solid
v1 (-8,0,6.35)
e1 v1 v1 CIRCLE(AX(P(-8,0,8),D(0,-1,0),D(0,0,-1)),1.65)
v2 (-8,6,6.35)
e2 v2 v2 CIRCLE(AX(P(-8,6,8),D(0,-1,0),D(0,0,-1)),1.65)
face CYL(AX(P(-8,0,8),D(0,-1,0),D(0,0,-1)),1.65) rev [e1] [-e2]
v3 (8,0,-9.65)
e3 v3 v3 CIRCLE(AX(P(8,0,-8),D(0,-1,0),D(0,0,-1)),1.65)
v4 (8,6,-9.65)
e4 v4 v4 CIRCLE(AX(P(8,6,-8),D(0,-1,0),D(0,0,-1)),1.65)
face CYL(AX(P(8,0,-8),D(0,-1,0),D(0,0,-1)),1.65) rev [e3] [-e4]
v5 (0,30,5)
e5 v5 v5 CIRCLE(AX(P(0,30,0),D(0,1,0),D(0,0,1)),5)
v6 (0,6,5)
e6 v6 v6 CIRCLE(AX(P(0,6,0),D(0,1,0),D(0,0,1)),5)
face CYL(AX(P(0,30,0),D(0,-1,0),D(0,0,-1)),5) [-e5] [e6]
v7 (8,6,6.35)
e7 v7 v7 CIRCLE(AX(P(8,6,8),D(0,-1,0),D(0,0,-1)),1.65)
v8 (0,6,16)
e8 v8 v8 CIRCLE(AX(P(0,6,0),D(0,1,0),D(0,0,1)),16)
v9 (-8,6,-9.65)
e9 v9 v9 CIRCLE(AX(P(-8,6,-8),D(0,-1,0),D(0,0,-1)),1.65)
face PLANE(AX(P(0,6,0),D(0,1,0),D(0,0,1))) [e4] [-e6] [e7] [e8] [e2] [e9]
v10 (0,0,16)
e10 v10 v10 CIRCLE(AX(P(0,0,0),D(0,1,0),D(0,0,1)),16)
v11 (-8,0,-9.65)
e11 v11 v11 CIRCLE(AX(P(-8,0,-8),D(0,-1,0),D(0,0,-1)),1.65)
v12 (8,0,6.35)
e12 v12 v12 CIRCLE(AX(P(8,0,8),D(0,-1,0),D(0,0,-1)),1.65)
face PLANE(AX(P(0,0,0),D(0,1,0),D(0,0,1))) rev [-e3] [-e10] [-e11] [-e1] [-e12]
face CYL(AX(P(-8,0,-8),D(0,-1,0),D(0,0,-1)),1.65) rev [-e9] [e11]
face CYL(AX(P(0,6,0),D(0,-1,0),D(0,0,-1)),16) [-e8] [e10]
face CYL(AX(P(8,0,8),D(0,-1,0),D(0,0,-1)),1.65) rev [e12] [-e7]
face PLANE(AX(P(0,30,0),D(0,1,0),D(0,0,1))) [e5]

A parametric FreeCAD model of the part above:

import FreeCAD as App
import Part
import Sketcher

doc = App.newDocument("Part")
params = doc.addObject("Spreadsheet::Sheet", "Params")
for row, (alias, value) in enumerate([
    ("sketch1_diameter", "32 mm"),
    ("pad1_length", "6 mm"),
    ("sketch2_diameter", "3.3 mm"),
    ("hole_diameter", "3.3 mm"),
    ("sketch3_diameter", "10 mm"),
    ("pad2_length", "24 mm"),
], start=1):
    params.set(f"A{row}", alias)
    params.set(f"B{row}", "=" + value)
    params.setAlias(f"B{row}", alias)

body = doc.addObject("PartDesign::Body", "Body")

sketch1 = doc.addObject("Sketcher::SketchObject", "Sketch")
body.addObject(sketch1)
sketch1.AttachmentSupport = (doc.XZ_Plane, [""])
sketch1.MapMode = "FlatFace"
sketch1.addGeometry(Part.Circle(App.Vector(0, 0, 0), App.Vector(0, 0, 1), 16), False)
sketch1.addConstraint([
    Sketcher.Constraint("Coincident", 0, 3, -1, 1),
    Sketcher.Constraint("Diameter", 0, 32.0),
])
sketch1.setExpression("Constraints[1]", "Params.sketch1_diameter")
pad1 = doc.addObject("PartDesign::Pad", "Pad")
body.addObject(pad1)
pad1.Profile = sketch1
pad1.setExpression("Length", "Params.pad1_length")
pad1.Reversed = True

sketch2 = doc.addObject("Sketcher::SketchObject", "Sketch001")
body.addObject(sketch2)
sketch2.AttachmentSupport = (doc.XZ_Plane, [""])
sketch2.MapMode = "FlatFace"
sketch2.addGeometry([
    Part.Circle(App.Vector(8, -8, 0), App.Vector(0, 0, 1), 1.65),
    Part.Circle(App.Vector(8, 8, 0), App.Vector(0, 0, 1), 1.65),
    Part.Circle(App.Vector(-8, 8, 0), App.Vector(0, 0, 1), 1.65),
    Part.Circle(App.Vector(-8, -8, 0), App.Vector(0, 0, 1), 1.65),
], False)
sketch2.addConstraint([
    Sketcher.Constraint("Equal", 0, 1),
    Sketcher.Constraint("Equal", 1, 2),
    Sketcher.Constraint("Equal", 2, 3),
    Sketcher.Constraint("Symmetric", 0, 3, 2, 3, -1, 1),
    Sketcher.Constraint("Symmetric", 1, 3, 3, 3, -1, 1),
    Sketcher.Constraint("Symmetric", 1, 3, 2, 3, -2),
    Sketcher.Constraint("Diameter", 0, 3.3),
    Sketcher.Constraint("DistanceX", -1, 1, 0, 3, 8.0),
    Sketcher.Constraint("DistanceY", 0, 3, -1, 1, 8.0),
])
sketch2.setExpression("Constraints[6]", "Params.sketch2_diameter")
doc.recompute()
hole = doc.addObject("PartDesign::Hole", "Hole")
body.addObject(hole)
hole.Profile = sketch2
hole.ThreadType = "None"
hole.setExpression("Diameter", "Params.hole_diameter")
hole.DepthType = "ThroughAll"

sketch3 = doc.addObject("Sketcher::SketchObject", "Sketch002")
body.addObject(sketch3)
sketch3.AttachmentSupport = (doc.XZ_Plane, [""])
sketch3.MapMode = "FlatFace"
sketch3.AttachmentOffset = App.Placement(App.Vector(0, 0, -6), App.Rotation())
sketch3.addGeometry(Part.Circle(App.Vector(0, 0, 0), App.Vector(0, 0, 1), 5), False)
sketch3.addConstraint([
    Sketcher.Constraint("Coincident", 0, 3, -1, 1),
    Sketcher.Constraint("Diameter", 0, 10.0),
])
sketch3.setExpression("Constraints[1]", "Params.sketch3_diameter")
pad2 = doc.addObject("PartDesign::Pad", "Pad001")
body.addObject(pad2)
pad2.Profile = sketch3
pad2.setExpression("Length", "Params.pad2_length")
pad2.Reversed = True

doc.recompute()
